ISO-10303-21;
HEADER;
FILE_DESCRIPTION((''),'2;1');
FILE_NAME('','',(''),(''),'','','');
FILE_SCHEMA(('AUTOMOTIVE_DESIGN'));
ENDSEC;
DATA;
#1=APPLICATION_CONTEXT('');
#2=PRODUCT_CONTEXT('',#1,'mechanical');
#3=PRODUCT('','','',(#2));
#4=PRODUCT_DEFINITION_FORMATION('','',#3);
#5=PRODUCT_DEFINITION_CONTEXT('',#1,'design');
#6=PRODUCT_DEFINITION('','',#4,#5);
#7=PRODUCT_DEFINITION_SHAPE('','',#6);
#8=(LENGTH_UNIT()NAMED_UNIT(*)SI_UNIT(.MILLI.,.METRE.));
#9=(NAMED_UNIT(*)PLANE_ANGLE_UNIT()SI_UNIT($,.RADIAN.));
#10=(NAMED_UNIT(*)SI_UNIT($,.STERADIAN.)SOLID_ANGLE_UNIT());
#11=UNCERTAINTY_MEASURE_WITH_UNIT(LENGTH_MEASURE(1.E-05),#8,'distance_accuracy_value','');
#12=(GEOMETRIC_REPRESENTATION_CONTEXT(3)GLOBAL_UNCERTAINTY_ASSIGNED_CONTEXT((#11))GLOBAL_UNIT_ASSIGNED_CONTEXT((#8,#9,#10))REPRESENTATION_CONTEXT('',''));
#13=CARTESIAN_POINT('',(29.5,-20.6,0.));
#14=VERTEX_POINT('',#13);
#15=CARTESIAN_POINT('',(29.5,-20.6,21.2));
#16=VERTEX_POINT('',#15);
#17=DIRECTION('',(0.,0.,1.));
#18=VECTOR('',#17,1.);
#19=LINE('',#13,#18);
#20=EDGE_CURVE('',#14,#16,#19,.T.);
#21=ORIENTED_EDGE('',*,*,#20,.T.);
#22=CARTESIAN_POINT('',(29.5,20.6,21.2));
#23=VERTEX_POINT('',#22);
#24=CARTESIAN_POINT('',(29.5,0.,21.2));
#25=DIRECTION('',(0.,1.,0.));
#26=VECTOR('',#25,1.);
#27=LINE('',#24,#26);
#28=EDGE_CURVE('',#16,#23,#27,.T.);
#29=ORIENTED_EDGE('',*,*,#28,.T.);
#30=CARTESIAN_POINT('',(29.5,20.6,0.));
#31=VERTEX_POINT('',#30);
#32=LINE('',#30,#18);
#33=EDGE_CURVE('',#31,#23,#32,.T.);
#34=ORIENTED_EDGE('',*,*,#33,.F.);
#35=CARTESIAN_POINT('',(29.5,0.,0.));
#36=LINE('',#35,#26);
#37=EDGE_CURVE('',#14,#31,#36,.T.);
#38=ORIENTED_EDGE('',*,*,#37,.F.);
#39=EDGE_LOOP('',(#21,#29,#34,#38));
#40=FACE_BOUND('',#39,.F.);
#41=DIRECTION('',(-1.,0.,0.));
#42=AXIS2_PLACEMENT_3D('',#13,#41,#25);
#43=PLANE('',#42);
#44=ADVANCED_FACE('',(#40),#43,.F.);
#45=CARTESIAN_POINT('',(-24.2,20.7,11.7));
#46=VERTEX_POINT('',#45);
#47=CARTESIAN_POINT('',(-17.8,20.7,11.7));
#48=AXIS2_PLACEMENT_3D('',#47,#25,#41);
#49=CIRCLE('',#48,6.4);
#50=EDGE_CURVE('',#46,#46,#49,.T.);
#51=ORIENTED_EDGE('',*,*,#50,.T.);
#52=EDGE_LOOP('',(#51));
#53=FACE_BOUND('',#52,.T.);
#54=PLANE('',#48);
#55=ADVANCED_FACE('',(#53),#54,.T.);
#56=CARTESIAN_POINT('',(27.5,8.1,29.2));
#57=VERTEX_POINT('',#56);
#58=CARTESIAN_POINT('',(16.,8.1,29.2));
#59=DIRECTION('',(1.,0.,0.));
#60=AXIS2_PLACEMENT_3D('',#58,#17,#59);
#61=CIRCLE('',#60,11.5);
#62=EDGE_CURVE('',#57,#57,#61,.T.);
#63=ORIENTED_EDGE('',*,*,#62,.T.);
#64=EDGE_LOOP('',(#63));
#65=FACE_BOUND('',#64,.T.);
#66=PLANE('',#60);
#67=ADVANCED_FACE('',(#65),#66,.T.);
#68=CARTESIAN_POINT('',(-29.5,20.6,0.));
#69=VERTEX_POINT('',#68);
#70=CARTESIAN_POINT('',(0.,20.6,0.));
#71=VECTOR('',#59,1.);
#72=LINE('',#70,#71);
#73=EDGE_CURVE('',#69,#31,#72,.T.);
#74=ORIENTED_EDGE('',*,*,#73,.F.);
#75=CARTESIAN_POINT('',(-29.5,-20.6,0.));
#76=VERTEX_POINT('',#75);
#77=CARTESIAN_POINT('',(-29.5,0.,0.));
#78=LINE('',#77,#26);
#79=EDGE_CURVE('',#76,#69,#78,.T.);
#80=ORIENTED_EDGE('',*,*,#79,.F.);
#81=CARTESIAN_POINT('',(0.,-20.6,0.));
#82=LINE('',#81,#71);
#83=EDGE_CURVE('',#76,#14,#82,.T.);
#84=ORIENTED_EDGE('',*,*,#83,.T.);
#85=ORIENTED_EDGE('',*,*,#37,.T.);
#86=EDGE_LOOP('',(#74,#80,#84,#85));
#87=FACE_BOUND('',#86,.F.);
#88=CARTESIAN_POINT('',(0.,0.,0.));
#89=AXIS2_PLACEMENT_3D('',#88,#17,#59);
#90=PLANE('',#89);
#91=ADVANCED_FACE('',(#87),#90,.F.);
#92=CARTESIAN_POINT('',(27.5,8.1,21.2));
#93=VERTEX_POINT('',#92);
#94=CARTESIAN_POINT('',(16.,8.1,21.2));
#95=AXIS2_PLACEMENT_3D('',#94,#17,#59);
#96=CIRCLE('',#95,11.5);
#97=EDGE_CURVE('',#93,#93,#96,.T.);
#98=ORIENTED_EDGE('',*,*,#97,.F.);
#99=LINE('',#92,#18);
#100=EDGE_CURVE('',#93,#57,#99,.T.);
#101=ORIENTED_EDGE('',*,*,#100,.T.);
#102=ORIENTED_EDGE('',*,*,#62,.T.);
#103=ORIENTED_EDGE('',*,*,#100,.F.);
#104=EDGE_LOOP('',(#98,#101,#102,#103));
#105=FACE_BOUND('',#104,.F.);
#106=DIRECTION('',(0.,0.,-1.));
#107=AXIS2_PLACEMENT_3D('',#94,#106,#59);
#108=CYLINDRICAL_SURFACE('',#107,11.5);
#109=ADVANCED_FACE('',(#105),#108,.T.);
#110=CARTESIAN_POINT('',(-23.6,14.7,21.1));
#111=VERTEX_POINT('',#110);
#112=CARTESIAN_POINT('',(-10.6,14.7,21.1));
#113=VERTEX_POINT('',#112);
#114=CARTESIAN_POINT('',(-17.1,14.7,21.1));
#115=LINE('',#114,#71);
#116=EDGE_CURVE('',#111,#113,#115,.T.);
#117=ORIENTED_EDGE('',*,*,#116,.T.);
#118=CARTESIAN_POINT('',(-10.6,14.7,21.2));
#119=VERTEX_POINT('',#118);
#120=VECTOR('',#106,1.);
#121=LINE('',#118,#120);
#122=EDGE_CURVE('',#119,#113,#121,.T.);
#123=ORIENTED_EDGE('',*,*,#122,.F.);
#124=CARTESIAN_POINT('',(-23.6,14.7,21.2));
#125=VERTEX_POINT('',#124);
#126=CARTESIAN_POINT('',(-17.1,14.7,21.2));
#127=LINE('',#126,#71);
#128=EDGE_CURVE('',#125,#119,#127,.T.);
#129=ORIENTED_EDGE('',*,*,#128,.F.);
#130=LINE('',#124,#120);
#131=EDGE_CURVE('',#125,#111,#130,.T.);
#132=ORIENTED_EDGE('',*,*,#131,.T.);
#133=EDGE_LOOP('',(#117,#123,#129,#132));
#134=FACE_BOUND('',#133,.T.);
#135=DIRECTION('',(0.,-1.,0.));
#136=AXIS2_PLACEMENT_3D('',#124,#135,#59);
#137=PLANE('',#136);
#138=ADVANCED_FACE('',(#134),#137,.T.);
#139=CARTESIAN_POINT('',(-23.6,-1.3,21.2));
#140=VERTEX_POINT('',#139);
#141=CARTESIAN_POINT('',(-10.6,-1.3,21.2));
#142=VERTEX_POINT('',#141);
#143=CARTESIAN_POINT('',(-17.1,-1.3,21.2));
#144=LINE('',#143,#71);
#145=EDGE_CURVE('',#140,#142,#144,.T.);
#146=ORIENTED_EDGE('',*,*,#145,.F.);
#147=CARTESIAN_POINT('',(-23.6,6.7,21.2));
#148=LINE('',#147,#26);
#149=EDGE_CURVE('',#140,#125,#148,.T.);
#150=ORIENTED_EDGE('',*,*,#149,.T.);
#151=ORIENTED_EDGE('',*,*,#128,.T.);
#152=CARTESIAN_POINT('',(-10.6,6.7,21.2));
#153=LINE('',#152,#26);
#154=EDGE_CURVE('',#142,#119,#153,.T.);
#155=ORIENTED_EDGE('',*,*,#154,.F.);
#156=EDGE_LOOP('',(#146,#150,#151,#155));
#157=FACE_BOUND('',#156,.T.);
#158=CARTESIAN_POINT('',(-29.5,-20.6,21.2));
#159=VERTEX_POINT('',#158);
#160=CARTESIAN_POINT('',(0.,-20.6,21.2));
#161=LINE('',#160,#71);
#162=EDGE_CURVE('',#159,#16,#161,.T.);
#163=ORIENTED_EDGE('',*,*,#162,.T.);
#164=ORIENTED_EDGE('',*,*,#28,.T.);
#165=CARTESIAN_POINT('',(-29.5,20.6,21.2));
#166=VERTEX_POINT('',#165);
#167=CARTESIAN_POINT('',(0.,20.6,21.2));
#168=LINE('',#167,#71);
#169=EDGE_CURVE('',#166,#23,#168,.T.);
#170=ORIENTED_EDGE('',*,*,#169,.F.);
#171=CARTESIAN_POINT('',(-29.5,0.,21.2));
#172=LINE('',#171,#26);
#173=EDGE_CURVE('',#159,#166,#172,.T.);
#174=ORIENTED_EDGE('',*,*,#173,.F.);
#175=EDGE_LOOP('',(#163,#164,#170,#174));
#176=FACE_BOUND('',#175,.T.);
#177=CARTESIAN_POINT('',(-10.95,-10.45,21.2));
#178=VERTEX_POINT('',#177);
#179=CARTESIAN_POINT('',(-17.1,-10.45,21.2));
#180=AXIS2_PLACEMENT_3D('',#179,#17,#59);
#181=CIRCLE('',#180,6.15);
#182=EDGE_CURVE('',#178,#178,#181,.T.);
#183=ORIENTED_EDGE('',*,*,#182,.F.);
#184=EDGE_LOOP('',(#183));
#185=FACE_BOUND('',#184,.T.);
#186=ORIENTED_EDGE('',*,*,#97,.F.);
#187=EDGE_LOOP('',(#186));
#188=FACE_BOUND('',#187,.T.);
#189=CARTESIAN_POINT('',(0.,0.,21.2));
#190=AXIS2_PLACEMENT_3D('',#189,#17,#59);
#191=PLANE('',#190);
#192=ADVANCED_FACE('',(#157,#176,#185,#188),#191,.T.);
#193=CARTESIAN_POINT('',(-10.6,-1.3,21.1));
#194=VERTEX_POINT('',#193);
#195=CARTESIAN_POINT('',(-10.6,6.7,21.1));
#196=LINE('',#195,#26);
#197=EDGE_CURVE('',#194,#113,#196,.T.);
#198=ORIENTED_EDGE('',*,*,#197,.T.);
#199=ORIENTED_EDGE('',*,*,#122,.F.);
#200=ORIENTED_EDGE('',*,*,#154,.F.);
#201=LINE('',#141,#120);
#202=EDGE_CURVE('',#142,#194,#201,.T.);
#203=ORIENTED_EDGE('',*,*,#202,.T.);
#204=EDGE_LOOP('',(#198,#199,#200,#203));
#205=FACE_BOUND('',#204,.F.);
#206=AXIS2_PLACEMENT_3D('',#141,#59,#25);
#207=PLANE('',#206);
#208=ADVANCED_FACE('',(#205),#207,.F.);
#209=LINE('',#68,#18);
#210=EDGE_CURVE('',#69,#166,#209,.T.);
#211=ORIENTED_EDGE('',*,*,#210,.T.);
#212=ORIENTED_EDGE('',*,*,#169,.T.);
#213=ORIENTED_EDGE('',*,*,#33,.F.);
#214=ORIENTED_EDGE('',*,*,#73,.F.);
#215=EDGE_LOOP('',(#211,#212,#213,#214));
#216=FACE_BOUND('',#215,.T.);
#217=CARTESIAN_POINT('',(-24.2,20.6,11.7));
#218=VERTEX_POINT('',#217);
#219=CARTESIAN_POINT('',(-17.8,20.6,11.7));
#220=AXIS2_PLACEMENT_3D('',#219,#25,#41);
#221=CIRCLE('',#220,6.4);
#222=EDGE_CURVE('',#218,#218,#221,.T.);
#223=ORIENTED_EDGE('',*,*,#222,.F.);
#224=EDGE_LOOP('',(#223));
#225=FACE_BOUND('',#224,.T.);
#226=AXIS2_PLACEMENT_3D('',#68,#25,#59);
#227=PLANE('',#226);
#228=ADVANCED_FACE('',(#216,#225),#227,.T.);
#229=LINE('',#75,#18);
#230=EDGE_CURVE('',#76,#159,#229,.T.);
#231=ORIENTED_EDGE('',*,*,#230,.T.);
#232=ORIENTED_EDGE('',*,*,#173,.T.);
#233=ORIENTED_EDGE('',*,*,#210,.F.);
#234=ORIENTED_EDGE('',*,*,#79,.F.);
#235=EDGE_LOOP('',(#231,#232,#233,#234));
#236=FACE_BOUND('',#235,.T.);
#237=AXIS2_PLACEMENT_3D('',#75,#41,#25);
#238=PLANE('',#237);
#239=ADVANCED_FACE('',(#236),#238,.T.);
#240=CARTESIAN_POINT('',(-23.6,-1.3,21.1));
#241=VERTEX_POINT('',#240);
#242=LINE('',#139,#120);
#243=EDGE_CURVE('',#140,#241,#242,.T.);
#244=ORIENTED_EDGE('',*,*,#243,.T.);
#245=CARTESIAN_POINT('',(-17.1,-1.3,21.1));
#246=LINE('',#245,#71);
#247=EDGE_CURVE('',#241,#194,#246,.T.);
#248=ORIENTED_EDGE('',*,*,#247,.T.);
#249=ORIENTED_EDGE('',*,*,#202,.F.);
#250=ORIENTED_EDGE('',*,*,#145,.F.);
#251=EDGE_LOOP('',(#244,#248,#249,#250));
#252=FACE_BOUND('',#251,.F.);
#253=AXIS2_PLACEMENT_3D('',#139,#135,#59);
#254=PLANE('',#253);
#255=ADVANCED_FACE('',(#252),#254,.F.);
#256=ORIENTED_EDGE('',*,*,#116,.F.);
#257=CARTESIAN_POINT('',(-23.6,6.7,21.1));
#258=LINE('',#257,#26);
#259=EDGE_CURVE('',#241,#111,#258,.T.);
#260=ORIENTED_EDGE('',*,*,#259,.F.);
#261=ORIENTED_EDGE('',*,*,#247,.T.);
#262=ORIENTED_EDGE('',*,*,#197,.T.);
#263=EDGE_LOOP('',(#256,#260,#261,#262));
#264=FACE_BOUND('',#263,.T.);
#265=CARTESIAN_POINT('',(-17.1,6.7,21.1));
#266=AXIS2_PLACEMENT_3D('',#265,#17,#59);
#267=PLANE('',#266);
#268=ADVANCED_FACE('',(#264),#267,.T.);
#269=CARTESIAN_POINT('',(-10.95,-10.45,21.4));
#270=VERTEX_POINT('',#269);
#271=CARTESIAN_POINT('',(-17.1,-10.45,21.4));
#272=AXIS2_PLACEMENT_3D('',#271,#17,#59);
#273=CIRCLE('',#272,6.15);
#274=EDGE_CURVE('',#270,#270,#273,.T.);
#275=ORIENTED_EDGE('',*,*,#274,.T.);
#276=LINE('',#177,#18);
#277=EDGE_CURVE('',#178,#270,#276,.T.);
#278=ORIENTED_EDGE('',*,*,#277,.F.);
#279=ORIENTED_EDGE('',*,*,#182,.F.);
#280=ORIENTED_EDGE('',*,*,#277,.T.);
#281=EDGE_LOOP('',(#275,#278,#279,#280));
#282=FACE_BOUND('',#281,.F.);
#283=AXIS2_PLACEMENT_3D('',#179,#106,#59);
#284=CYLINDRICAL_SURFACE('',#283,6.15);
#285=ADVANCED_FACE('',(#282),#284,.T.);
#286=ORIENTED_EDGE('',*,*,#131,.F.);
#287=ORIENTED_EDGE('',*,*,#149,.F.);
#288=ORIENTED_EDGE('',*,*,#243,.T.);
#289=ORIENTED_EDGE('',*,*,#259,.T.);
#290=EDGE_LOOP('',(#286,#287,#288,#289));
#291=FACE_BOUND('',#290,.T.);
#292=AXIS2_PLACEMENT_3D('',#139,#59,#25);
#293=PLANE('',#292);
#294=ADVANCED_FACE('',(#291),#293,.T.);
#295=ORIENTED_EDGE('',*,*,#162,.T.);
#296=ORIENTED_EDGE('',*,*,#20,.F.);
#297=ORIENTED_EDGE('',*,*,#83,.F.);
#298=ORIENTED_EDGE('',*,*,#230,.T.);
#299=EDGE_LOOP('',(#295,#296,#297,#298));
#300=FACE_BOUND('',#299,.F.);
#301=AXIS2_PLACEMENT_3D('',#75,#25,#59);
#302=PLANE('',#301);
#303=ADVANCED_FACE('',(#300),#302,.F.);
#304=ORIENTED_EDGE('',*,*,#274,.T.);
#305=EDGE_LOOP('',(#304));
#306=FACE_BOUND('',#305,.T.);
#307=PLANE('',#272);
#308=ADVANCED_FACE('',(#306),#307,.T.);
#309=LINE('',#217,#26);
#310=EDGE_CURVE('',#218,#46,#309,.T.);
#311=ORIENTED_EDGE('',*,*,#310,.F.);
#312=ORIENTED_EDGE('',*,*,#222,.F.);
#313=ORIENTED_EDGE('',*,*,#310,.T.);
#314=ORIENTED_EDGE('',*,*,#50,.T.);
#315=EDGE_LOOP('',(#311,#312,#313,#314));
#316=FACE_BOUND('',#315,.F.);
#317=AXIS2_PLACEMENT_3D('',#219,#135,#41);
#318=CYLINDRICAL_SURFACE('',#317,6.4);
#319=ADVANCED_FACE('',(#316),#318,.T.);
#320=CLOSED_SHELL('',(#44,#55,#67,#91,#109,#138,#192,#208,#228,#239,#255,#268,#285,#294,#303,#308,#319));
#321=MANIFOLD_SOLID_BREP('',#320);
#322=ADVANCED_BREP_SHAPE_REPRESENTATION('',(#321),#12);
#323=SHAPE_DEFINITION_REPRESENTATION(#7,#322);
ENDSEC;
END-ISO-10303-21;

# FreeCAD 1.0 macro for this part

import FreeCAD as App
import Part
import Sketcher

doc = App.newDocument("Part")
params = doc.addObject("Spreadsheet::Sheet", "Params")
for row, (alias, value) in enumerate([
    ("sketch1_width", "59 mm"),
    ("sketch1_height", "41.2 mm"),
    ("pad1_length", "21.2 mm"),
    ("sketch2_diameter", "23 mm"),
    ("pad2_length", "8 mm"),
    ("sketch3_diameter", "12.8 mm"),
    ("pad3_length", "0.1 mm"),
    ("sketch4_width", "13 mm"),
    ("sketch4_height", "16 mm"),
    ("pocket1_length", "0.1 mm"),
    ("sketch5_diameter", "12.3 mm"),
    ("pad4_length", "0.2 mm"),
], start=1):
    params.set(f"A{row}", alias)
    params.set(f"B{row}", "=" + value)
    params.setAlias(f"B{row}", alias)

body = doc.addObject("PartDesign::Body", "Body")

sketch1 = body.newObject("Sketcher::SketchObject", "Sketch")
sketch1.AttachmentSupport = (doc.getObject("XY_Plane"), [""])
sketch1.MapMode = "FlatFace"
sketch1.addGeometry(Part.LineSegment(App.Vector(-30, 21, 0), App.Vector(-30, -21, 0)), False)
sketch1.addGeometry(Part.LineSegment(App.Vector(-30, -21, 0), App.Vector(30, -21, 0)), False)
sketch1.addGeometry(Part.LineSegment(App.Vector(30, -21, 0), App.Vector(30, 21, 0)), False)
sketch1.addGeometry(Part.LineSegment(App.Vector(30, 21, 0), App.Vector(-30, 21, 0)), False)
sketch1.addConstraint(Sketcher.Constraint("Coincident", 0, 2, 1, 1))
sketch1.addConstraint(Sketcher.Constraint("Coincident", 1, 2, 2, 1))
sketch1.addConstraint(Sketcher.Constraint("Coincident", 2, 2, 3, 1))
sketch1.addConstraint(Sketcher.Constraint("Coincident", 3, 2, 0, 1))
sketch1.addConstraint(Sketcher.Constraint("Vertical", 0))
sketch1.addConstraint(Sketcher.Constraint("Horizontal", 1))
sketch1.addConstraint(Sketcher.Constraint("Vertical", 2))
sketch1.addConstraint(Sketcher.Constraint("Horizontal", 3))
sketch1.addConstraint(Sketcher.Constraint("Symmetric", 0, 2, 2, 2, -1, 1))
sketch1.addConstraint(Sketcher.Constraint("DistanceX", 1, 1, 1, 2, 59.0))
sketch1.addConstraint(Sketcher.Constraint("DistanceY", 0, 2, 0, 1, 41.2))
sketch1.setExpression("Constraints[9]", "Params.sketch1_width")
sketch1.setExpression("Constraints[10]", "Params.sketch1_height")
pad1 = body.newObject("PartDesign::Pad", "Pad")
pad1.Profile = sketch1
pad1.setExpression("Length", "Params.pad1_length")

sketch2 = body.newObject("Sketcher::SketchObject", "Sketch001")
sketch2.AttachmentSupport = (doc.getObject("XY_Plane"), [""])
sketch2.MapMode = "FlatFace"
sketch2.AttachmentOffset = App.Placement(App.Vector(0, 0, 21.2), App.Rotation())
sketch2.addGeometry(Part.Circle(App.Vector(16, 8, 0), App.Vector(0, 0, 1), 12), False)
sketch2.addConstraint(Sketcher.Constraint("Diameter", 0, 23.0))
sketch2.addConstraint(Sketcher.Constraint("DistanceX", -1, 1, 0, 3, 16.0))
sketch2.addConstraint(Sketcher.Constraint("DistanceY", -1, 1, 0, 3, 8.1))
sketch2.setExpression("Constraints[0]", "Params.sketch2_diameter")
pad2 = body.newObject("PartDesign::Pad", "Pad001")
pad2.Profile = sketch2
pad2.setExpression("Length", "Params.pad2_length")

sketch3 = body.newObject("Sketcher::SketchObject", "Sketch002")
sketch3.AttachmentSupport = (doc.getObject("XZ_Plane"), [""])
sketch3.MapMode = "FlatFace"
sketch3.AttachmentOffset = App.Placement(App.Vector(0, 0, -20.6), App.Rotation())
sketch3.addGeometry(Part.Circle(App.Vector(-18, 12, 0), App.Vector(0, 0, 1), 6), False)
sketch3.addConstraint(Sketcher.Constraint("Diameter", 0, 12.8))
sketch3.addConstraint(Sketcher.Constraint("DistanceX", 0, 3, -1, 1, 17.8))
sketch3.addConstraint(Sketcher.Constraint("DistanceY", -1, 1, 0, 3, 11.7))
sketch3.setExpression("Constraints[0]", "Params.sketch3_diameter")
pad3 = body.newObject("PartDesign::Pad", "Pad002")
pad3.Profile = sketch3
pad3.setExpression("Length", "Params.pad3_length")
pad3.Reversed = True

sketch4 = body.newObject("Sketcher::SketchObject", "Sketch003")
sketch4.AttachmentSupport = (doc.getObject("XY_Plane"), [""])
sketch4.MapMode = "FlatFace"
sketch4.AttachmentOffset = App.Placement(App.Vector(0, 0, 21.2), App.Rotation())
sketch4.addGeometry(Part.LineSegment(App.Vector(-24, 15, 0), App.Vector(-24, -1, 0)), False)
sketch4.addGeometry(Part.LineSegment(App.Vector(-24, -1, 0), App.Vector(-11, -1, 0)), False)
sketch4.addGeometry(Part.LineSegment(App.Vector(-11, -1, 0), App.Vector(-11, 15, 0)), False)
sketch4.addGeometry(Part.LineSegment(App.Vector(-11, 15, 0), App.Vector(-24, 15, 0)), False)
sketch4.addConstraint(Sketcher.Constraint("Coincident", 0, 2, 1, 1))
sketch4.addConstraint(Sketcher.Constraint("Coincident", 1, 2, 2, 1))
sketch4.addConstraint(Sketcher.Constraint("Coincident", 2, 2, 3, 1))
sketch4.addConstraint(Sketcher.Constraint("Coincident", 3, 2, 0, 1))
sketch4.addConstraint(Sketcher.Constraint("Vertical", 0))
sketch4.addConstraint(Sketcher.Constraint("Horizontal", 1))
sketch4.addConstraint(Sketcher.Constraint("Vertical", 2))
sketch4.addConstraint(Sketcher.Constraint("Horizontal", 3))
sketch4.addConstraint(Sketcher.Constraint("DistanceX", 1, 1, 1, 2, 13.0))
sketch4.addConstraint(Sketcher.Constraint("DistanceY", 0, 2, 0, 1, 16.0))
sketch4.addConstraint(Sketcher.Constraint("DistanceX", 0, 2, -1, 1, 23.6))
sketch4.addConstraint(Sketcher.Constraint("DistanceY", 0, 2, -1, 1, 1.3))
sketch4.setExpression("Constraints[8]", "Params.sketch4_width")
sketch4.setExpression("Constraints[9]", "Params.sketch4_height")
pocket1 = body.newObject("PartDesign::Pocket", "Pocket")
pocket1.Profile = sketch4
pocket1.setExpression("Length", "Params.pocket1_length")

sketch5 = body.newObject("Sketcher::SketchObject", "Sketch004")
sketch5.AttachmentSupport = (doc.getObject("XY_Plane"), [""])
sketch5.MapMode = "FlatFace"
sketch5.AttachmentOffset = App.Placement(App.Vector(0, 0, 21.2), App.Rotation())
sketch5.addGeometry(Part.Circle(App.Vector(-17, -10, 0), App.Vector(0, 0, 1), 6), False)
sketch5.addConstraint(Sketcher.Constraint("Diameter", 0, 12.3))
sketch5.addConstraint(Sketcher.Constraint("DistanceX", 0, 3, -1, 1, 17.1))
sketch5.addConstraint(Sketcher.Constraint("DistanceY", 0, 3, -1, 1, 10.45))
sketch5.setExpression("Constraints[0]", "Params.sketch5_diameter")
pad4 = body.newObject("PartDesign::Pad", "Pad003")
pad4.Profile = sketch5
pad4.setExpression("Length", "Params.pad4_length")

doc.recompute()
